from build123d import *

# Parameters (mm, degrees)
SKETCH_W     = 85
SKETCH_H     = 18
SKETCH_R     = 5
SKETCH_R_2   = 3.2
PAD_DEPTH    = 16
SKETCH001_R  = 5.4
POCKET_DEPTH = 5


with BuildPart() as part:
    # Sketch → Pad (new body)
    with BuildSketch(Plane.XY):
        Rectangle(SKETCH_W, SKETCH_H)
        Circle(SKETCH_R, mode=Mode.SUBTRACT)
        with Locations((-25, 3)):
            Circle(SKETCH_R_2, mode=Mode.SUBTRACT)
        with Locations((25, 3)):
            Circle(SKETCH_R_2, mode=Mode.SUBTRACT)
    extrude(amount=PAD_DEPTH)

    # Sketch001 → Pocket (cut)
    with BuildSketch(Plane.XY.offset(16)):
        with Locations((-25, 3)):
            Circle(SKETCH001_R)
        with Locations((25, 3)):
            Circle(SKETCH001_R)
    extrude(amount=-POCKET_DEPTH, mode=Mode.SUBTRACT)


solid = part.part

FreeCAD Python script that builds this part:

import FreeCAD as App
import Part
import Sketcher


def add_polygon(sketch, points):
    """Adds a closed chain of lines whose ends are joined by coincident constraints."""
    first, n = sketch.GeometryCount, len(points)
    for a, b in zip(points, points[1:] + points[:1]):
        sketch.addGeometry(Part.LineSegment(App.Vector(*a, 0), App.Vector(*b, 0)), False)
    for i in range(n):
        sketch.addConstraint(Sketcher.Constraint("Coincident", first + i, 2, first + (i + 1) % n, 1))

doc = App.newDocument("Part")
params = doc.addObject("Spreadsheet::Sheet", "Params")
for row, (alias, value) in enumerate([
    ("sketch1_diameter", "10 mm"),
    ("sketch1_diameter2", "6.4 mm"),
    ("sketch1_width", "85 mm"),
    ("sketch1_height", "18 mm"),
    ("pad1_length", "16 mm"),
    ("sketch2_diameter", "10.8 mm"),
    ("pocket1_length", "5 mm"),
], start=1):
    params.set(f"A{row}", alias)
    params.set(f"B{row}", "=" + value)
    params.setAlias(f"B{row}", alias)

body = doc.addObject("PartDesign::Body", "Body")

# Sketch on XY plane
sketch1 = body.newObject("Sketcher::SketchObject", "Sketch")
sketch1.AttachmentSupport = (doc.getObject("XY_Plane"), [""])
sketch1.MapMode = "FlatFace"
add_polygon(sketch1, [(-42.5, 9), (-42.5, -9), (42.5, -9), (42.5, 9)])  # lines 0-3
sketch1.addGeometry(Part.Circle(App.Vector(0, 0, 0), App.Vector(0, 0, 1), 5), False)  # 4
sketch1.addGeometry(Part.Circle(App.Vector(-25, 3, 0), App.Vector(0, 0, 1), 3.2), False)  # 5
sketch1.addGeometry(Part.Circle(App.Vector(25, 3, 0), App.Vector(0, 0, 1), 3.2), False)  # 6
sketch1.addConstraint(Sketcher.Constraint("Vertical", 0))
sketch1.addConstraint(Sketcher.Constraint("Horizontal", 1))
sketch1.addConstraint(Sketcher.Constraint("Vertical", 2))
sketch1.addConstraint(Sketcher.Constraint("Horizontal", 3))
sketch1.addConstraint(Sketcher.Constraint("Coincident", 4, 3, -1, 1))
sketch1.addConstraint(Sketcher.Constraint("Equal", 5, 6))
sketch1.addConstraint(Sketcher.Constraint("Symmetric", 0, 2, 2, 2, -1, 1))
sketch1.addConstraint(Sketcher.Constraint("Symmetric", 5, 3, 6, 3, -2))
sketch1.addConstraint(Sketcher.Constraint("Diameter", 4, 10.0))
sketch1.addConstraint(Sketcher.Constraint("Diameter", 5, 6.4))
sketch1.addConstraint(Sketcher.Constraint("DistanceX", 1, 1, 1, 2, 85.0))
sketch1.addConstraint(Sketcher.Constraint("DistanceY", 0, 2, 0, 1, 18.0))
sketch1.addConstraint(Sketcher.Constraint("DistanceX", 5, 3, -1, 1, 25.0))
sketch1.addConstraint(Sketcher.Constraint("DistanceY", -1, 1, 5, 3, 3.0))
sketch1.setExpression("Constraints[12]", "Params.sketch1_diameter")
sketch1.setExpression("Constraints[13]", "Params.sketch1_diameter2")
sketch1.setExpression("Constraints[14]", "Params.sketch1_width")
sketch1.setExpression("Constraints[15]", "Params.sketch1_height")
pad1 = body.newObject("PartDesign::Pad", "Pad")
pad1.Profile = sketch1
pad1.setExpression("Length", "Params.pad1_length")

# Sketch on XY plane
sketch2 = body.newObject("Sketcher::SketchObject", "Sketch001")
sketch2.AttachmentSupport = (doc.getObject("XY_Plane"), [""])
sketch2.MapMode = "FlatFace"
sketch2.AttachmentOffset = App.Placement(App.Vector(0, 0, 16), App.Rotation())
sketch2.addGeometry(Part.Circle(App.Vector(-25, 3, 0), App.Vector(0, 0, 1), 5), False)
sketch2.addGeometry(Part.Circle(App.Vector(25, 3, 0), App.Vector(0, 0, 1), 5), False)
sketch2.addConstraint(Sketcher.Constraint("Equal", 0, 1))
sketch2.addConstraint(Sketcher.Constraint("Symmetric", 0, 3, 1, 3, -2))
sketch2.addConstraint(Sketcher.Constraint("Diameter", 0, 10.8))
sketch2.addConstraint(Sketcher.Constraint("DistanceX", 0, 3, -1, 1, 25.0))
sketch2.addConstraint(Sketcher.Constraint("DistanceY", -1, 1, 0, 3, 3.0))
sketch2.setExpression("Constraints[2]", "Params.sketch2_diameter")
pocket1 = body.newObject("PartDesign::Pocket", "Pocket")
pocket1.Profile = sketch2
pocket1.setExpression("Length", "Params.pocket1_length")

doc.recompute()
